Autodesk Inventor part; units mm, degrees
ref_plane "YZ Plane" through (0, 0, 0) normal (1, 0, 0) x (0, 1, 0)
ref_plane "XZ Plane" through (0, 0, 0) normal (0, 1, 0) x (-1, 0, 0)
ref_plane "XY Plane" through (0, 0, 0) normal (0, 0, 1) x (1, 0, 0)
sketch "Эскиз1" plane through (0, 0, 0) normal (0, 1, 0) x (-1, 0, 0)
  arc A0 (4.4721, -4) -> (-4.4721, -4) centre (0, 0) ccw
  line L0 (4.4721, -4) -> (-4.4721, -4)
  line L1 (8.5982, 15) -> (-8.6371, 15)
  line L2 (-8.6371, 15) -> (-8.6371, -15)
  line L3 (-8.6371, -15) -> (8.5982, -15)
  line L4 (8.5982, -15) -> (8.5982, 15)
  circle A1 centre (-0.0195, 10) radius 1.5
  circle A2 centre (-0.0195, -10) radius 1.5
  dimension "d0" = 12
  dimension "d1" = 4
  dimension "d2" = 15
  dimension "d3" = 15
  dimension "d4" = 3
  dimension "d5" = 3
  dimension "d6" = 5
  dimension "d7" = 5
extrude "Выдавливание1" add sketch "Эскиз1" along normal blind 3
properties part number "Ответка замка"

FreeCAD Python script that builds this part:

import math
import FreeCAD as App
import Part
import Sketcher

V = App.Vector

doc = App.newDocument("Part")
body = doc.addObject("PartDesign::Body", "Body")

# Sketch on XZ plane
sketch1 = doc.addObject("Sketcher::SketchObject", "Sketch")
body.addObject(sketch1)
sketch1.AttachmentSupport = (doc.XZ_Plane, [""])
sketch1.MapMode = "FlatFace"
sketch1.addGeometry([
    Part.LineSegment(V(-8.5982, -15, 0), V(-8.5982, 15, 0)),  # 0
    Part.LineSegment(V(-8.5982, 15, 0), V(8.6371, 15, 0)),  # 1
    Part.LineSegment(V(8.6371, 15, 0), V(8.6371, -15, 0)),  # 2
    Part.LineSegment(V(8.6371, -15, 0), V(-8.5982, -15, 0)),  # 3
    Part.Circle(V(0.0195, -10, 0), V(0, 0, 1), 1.5),  # 4
    Part.Circle(V(0.0195, 10, 0), V(0, 0, 1), 1.5),  # 5
    Part.ArcOfCircle(Part.Circle(V(0, 0, 0), V(0, 0, 1), 5.999973), math.radians(-41.810544), math.radians(221.810544)),  # 6
    Part.LineSegment(V(-4.4721, -4, 0), V(4.4721, -4, 0)),  # 7
], False)
sketch1.addConstraint([
    Sketcher.Constraint("Coincident", 0, 2, 1, 1),
    Sketcher.Constraint("Coincident", 1, 2, 2, 1),
    Sketcher.Constraint("Coincident", 2, 2, 3, 1),
    Sketcher.Constraint("Coincident", 3, 2, 0, 1),
    Sketcher.Constraint("Coincident", 6, 1, 7, 2),
    Sketcher.Constraint("Coincident", 7, 1, 6, 2),
    Sketcher.Constraint("Vertical", 0),
    Sketcher.Constraint("Horizontal", 1),
    Sketcher.Constraint("Vertical", 2),
    Sketcher.Constraint("Horizontal", 3),
    Sketcher.Constraint("Horizontal", 7),
    Sketcher.Constraint("Coincident", 6, 3, -1, 1),
    Sketcher.Constraint("Equal", 4, 5),
    Sketcher.Constraint("Symmetric", 4, 3, 5, 3, -1),
    Sketcher.Constraint("Diameter", 4, 3.0),
    Sketcher.Constraint("Radius", 6, 6.0),
    Sketcher.Constraint("DistanceY", -1, 1, 0, 2, 15.0),
    Sketcher.Constraint("DistanceY", 2, 2, -1, 1, 15.0),
    Sketcher.Constraint("DistanceY", 6, 1, -1, 1, 4.0),
    Sketcher.Constraint("DistanceY", 5, 3, 0, 2, 5.0),
    Sketcher.Constraint("DistanceX", 1, 1, 1, 2, 17.2353),
    Sketcher.Constraint("DistanceX", -1, 1, 1, 2, 8.637),
    Sketcher.Constraint("DistanceX", -1, 1, 4, 3, 0.0195),
])
pad1 = doc.addObject("PartDesign::Pad", "Pad")
body.addObject(pad1)
pad1.Profile = sketch1
pad1.Length = 3
pad1.Reversed = True

doc.recompute()
